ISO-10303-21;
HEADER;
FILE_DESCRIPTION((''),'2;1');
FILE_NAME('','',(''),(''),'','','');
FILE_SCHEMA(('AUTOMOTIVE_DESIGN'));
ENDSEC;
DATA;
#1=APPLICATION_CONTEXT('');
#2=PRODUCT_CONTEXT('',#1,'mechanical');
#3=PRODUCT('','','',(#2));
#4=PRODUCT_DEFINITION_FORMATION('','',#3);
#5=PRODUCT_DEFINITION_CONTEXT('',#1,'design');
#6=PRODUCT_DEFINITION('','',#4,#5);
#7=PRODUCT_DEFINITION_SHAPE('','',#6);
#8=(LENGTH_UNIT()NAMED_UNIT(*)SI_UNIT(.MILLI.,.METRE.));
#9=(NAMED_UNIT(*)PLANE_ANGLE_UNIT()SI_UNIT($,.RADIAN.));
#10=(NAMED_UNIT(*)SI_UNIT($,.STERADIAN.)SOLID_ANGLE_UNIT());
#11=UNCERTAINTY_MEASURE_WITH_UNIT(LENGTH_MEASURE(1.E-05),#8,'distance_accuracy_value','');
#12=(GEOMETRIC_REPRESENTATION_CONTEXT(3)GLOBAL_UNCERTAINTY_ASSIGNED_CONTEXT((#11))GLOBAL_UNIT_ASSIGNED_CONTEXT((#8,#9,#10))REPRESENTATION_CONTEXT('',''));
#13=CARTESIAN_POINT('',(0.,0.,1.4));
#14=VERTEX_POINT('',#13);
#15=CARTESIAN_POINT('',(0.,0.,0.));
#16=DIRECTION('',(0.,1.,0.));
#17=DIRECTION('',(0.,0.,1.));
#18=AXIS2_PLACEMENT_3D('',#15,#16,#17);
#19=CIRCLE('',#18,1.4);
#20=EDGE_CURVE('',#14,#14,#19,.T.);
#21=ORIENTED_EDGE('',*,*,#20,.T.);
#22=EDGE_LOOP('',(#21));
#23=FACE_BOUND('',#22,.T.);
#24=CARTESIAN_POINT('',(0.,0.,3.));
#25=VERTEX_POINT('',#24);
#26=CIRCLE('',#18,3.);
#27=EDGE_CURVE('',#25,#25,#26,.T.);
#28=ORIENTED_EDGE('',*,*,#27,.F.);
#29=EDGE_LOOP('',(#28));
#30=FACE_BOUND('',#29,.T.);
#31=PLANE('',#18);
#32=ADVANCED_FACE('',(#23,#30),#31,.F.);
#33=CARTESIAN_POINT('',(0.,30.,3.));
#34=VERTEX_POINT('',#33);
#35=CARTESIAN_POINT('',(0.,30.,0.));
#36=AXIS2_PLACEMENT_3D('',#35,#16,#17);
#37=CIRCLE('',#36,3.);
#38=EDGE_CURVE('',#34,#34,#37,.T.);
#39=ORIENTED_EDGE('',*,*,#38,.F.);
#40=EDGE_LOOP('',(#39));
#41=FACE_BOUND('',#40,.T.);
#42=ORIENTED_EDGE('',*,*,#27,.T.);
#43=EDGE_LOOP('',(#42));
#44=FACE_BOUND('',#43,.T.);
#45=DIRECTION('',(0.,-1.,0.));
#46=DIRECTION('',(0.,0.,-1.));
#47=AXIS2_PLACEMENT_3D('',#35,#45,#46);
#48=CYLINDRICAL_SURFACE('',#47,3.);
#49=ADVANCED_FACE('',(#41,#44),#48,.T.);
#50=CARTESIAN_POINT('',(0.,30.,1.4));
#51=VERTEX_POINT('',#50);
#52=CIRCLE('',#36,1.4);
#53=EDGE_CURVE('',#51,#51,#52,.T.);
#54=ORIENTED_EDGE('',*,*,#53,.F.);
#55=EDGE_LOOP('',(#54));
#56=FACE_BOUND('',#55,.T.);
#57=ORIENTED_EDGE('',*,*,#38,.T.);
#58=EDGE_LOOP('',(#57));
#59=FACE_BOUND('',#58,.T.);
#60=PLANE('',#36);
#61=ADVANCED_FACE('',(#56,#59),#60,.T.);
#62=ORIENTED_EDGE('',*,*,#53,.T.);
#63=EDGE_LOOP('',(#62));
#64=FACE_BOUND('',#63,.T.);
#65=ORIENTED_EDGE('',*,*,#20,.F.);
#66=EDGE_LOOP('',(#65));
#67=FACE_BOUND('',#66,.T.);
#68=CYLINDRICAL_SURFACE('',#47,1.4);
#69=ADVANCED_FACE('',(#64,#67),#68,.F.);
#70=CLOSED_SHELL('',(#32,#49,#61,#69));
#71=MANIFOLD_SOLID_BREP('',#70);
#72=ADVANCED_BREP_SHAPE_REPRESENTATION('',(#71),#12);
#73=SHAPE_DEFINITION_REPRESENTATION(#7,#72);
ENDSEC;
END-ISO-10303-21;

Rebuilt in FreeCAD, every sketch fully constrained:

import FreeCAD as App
import Part
import Sketcher

V = App.Vector
Q = App.Units.Quantity

doc = App.newDocument("Part")
body = doc.addObject("PartDesign::Body", "Body")

# Sketch on XZ plane
sketch1 = body.newObject("Sketcher::SketchObject", "Sketch")
sketch1.AttachmentSupport = (doc.getObject("XZ_Plane"), [""])
sketch1.MapMode = "FlatFace"
sketch1.addGeometry([
    Part.Circle(V(0, 0, 0), V(0, 0, 1), 3),
    Part.Circle(V(0, 0, 0), V(0, 0, 1), 1.4),
], False)
sketch1.addConstraint([
    Sketcher.Constraint("Coincident", 0, 3, -1, 1),
    Sketcher.Constraint("Coincident", 1, 3, -1, 1),
    Sketcher.Constraint("Diameter", 0, Q("6 mm")),
    Sketcher.Constraint("Diameter", 1, Q("2.8 mm")),
])
pad1 = body.newObject("PartDesign::Pad", "Pad")
pad1.Profile = sketch1
pad1.Length = 30
pad1.Reversed = True

doc.recompute()
